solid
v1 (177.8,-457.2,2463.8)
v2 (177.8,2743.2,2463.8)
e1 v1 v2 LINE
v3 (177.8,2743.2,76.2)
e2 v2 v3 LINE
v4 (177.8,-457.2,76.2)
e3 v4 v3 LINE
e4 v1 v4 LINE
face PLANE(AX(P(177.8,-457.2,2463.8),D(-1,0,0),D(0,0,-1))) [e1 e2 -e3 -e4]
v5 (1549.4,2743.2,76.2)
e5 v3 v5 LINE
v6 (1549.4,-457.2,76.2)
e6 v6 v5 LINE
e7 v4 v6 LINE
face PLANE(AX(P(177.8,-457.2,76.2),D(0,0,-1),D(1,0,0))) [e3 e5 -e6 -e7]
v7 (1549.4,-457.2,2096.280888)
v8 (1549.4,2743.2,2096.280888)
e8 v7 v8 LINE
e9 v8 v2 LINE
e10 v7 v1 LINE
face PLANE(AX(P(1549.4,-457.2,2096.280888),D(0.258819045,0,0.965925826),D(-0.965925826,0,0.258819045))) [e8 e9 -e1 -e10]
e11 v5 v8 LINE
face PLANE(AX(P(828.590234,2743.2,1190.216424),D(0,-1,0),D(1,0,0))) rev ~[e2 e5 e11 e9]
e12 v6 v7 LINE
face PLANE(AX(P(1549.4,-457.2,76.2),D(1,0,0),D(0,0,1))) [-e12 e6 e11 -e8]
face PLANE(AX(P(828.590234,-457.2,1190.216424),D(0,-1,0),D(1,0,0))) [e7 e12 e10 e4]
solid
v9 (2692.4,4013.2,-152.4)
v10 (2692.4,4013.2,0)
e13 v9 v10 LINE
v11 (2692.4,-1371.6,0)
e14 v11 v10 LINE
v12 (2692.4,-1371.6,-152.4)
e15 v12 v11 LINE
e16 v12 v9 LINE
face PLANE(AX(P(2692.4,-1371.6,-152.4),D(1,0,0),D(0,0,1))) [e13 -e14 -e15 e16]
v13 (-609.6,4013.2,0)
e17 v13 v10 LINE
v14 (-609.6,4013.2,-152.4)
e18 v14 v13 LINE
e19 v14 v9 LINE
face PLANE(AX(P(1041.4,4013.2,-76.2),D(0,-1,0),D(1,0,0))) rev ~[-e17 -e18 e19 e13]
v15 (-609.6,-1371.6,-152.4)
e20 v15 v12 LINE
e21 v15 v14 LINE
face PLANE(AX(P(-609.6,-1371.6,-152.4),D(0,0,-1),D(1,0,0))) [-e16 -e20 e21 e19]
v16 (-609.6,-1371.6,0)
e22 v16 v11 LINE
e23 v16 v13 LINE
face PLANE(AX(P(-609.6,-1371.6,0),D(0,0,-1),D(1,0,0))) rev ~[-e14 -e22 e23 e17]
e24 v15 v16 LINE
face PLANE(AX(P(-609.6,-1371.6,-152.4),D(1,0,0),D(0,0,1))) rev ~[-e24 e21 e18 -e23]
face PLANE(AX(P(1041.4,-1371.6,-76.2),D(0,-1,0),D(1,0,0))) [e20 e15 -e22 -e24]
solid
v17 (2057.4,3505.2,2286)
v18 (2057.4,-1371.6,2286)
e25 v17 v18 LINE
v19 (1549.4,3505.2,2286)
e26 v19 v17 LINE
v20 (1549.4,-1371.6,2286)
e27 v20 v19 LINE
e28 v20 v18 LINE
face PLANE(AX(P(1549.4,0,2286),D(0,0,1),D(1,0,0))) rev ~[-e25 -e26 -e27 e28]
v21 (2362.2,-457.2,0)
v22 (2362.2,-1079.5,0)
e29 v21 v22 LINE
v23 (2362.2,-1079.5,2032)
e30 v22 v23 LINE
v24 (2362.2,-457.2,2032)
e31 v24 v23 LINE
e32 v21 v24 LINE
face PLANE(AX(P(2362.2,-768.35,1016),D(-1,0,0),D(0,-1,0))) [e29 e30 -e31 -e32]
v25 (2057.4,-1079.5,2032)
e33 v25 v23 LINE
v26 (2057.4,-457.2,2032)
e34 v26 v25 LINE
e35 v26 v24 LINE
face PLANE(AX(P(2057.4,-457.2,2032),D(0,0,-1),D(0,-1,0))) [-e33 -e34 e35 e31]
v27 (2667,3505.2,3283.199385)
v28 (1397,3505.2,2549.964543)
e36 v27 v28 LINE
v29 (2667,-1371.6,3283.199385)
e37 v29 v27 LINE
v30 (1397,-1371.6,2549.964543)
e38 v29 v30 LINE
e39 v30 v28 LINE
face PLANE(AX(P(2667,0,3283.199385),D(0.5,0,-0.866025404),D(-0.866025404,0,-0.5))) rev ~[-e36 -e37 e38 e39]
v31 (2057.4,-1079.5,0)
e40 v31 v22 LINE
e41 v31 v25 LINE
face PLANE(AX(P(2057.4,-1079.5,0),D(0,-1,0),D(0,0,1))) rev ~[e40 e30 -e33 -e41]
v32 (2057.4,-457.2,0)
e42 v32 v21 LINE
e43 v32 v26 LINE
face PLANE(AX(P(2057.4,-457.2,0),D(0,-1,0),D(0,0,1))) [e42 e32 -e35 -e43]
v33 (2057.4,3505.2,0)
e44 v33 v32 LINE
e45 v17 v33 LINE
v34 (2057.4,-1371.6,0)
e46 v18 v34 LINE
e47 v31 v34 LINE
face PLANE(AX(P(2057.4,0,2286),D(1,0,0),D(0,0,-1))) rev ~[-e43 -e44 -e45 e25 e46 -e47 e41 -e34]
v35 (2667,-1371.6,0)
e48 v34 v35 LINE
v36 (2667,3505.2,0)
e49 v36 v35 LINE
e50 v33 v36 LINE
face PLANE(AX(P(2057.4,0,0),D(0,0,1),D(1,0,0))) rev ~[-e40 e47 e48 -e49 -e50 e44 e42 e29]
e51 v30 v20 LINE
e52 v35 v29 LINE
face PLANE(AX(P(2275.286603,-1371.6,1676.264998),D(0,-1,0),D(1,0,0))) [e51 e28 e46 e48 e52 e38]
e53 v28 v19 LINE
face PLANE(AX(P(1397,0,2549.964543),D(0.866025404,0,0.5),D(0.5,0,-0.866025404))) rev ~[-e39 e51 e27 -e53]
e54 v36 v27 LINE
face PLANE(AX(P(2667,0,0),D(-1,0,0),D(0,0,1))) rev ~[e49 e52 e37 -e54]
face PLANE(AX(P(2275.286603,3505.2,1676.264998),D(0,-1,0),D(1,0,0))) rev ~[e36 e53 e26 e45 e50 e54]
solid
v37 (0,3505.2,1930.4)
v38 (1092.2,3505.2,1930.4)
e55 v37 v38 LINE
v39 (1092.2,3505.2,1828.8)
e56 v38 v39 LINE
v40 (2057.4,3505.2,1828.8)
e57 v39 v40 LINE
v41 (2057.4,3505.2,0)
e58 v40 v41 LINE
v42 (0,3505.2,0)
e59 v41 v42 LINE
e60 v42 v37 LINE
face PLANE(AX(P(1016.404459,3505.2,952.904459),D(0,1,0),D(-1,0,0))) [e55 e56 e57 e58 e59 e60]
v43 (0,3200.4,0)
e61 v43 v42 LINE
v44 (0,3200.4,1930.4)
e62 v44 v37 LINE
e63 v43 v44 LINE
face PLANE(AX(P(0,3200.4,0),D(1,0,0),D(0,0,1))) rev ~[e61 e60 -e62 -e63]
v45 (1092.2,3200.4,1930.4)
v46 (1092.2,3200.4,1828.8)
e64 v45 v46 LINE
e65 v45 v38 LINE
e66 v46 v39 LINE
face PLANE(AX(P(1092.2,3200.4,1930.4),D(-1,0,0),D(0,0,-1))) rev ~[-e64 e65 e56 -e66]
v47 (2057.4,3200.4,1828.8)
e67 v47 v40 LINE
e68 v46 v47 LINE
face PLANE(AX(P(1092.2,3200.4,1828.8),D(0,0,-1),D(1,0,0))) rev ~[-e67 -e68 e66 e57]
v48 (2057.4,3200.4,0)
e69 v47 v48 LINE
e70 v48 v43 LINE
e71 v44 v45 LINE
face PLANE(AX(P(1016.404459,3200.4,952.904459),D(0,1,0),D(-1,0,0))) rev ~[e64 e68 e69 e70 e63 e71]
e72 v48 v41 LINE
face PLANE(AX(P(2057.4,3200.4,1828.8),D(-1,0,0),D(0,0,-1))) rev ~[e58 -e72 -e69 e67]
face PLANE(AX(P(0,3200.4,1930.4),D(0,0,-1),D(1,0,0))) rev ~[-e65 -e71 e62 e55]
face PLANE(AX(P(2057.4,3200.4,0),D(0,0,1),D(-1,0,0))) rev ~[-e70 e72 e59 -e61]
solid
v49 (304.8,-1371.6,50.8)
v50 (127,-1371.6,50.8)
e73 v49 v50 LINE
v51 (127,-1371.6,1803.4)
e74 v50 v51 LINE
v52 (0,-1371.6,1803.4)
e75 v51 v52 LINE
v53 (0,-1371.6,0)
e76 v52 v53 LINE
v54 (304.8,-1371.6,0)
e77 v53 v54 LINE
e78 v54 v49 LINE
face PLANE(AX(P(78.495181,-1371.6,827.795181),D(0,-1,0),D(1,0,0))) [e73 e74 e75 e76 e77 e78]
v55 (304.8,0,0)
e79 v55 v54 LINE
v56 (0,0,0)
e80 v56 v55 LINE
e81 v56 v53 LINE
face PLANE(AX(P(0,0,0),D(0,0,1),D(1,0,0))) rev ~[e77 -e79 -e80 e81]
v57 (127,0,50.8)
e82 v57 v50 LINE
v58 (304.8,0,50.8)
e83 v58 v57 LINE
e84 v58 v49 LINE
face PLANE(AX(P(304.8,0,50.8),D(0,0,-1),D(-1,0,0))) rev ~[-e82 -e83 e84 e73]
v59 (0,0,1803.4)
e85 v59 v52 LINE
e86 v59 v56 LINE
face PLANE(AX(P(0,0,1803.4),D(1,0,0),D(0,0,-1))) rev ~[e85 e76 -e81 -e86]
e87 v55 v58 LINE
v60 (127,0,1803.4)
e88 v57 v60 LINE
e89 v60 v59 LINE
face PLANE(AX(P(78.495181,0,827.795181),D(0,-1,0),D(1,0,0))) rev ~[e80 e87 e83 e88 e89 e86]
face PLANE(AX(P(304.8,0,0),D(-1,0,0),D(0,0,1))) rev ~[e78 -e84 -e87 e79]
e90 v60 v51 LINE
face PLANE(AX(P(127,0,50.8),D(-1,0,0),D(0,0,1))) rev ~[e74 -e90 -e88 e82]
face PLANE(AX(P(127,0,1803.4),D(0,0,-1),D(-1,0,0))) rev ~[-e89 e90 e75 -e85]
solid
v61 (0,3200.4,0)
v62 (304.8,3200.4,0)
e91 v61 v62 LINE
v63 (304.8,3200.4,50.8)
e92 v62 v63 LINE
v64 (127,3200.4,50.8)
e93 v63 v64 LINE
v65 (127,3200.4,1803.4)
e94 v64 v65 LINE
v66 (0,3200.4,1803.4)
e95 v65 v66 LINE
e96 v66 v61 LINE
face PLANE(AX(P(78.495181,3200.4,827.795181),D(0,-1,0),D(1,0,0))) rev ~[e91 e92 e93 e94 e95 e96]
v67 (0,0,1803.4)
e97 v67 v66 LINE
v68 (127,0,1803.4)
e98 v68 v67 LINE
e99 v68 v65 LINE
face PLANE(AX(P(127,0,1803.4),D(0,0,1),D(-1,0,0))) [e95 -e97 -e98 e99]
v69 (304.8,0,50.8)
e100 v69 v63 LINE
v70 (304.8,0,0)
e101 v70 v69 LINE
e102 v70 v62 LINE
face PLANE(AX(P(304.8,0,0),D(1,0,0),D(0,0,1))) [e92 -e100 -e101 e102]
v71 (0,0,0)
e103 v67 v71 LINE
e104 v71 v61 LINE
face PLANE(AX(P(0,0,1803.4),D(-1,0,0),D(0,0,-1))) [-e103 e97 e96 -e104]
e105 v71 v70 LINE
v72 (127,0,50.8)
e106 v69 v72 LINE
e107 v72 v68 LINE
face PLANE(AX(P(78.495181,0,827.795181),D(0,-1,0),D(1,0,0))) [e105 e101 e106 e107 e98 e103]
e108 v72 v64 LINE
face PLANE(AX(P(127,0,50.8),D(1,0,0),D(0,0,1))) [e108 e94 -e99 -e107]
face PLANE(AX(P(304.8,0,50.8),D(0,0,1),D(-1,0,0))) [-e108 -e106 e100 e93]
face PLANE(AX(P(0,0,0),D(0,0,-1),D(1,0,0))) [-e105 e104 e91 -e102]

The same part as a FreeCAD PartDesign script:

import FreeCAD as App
import Part
import Sketcher

V = App.Vector
Q = App.Units.Quantity

doc = App.newDocument("Part")
body = doc.addObject("PartDesign::Body", "Body")

# Sketch on XZ plane
sketch1 = body.newObject("Sketcher::SketchObject", "Sketch")
sketch1.AttachmentSupport = (doc.getObject("XZ_Plane"), [""])
sketch1.MapMode = "FlatFace"
sketch1.addGeometry([
    Part.LineSegment(V(0, 1803, 0), V(0, 0, 0)),  # 0
    Part.LineSegment(V(0, 0, 0), V(305, 0, 0)),  # 1
    Part.LineSegment(V(305, 0, 0), V(305, 51, 0)),  # 2
    Part.LineSegment(V(305, 51, 0), V(127, 51, 0)),  # 3
    Part.LineSegment(V(127, 51, 0), V(127, 1803, 0)),  # 4
    Part.LineSegment(V(127, 1803, 0), V(0, 1803, 0)),  # 5
], False)
sketch1.addConstraint([
    Sketcher.Constraint("Coincident", 0, 2, 1, 1),
    Sketcher.Constraint("Coincident", 1, 2, 2, 1),
    Sketcher.Constraint("Coincident", 2, 2, 3, 1),
    Sketcher.Constraint("Coincident", 3, 2, 4, 1),
    Sketcher.Constraint("Coincident", 4, 2, 5, 1),
    Sketcher.Constraint("Coincident", 5, 2, 0, 1),
    Sketcher.Constraint("Vertical", 0),
    Sketcher.Constraint("Horizontal", 1),
    Sketcher.Constraint("Vertical", 2),
    Sketcher.Constraint("Horizontal", 3),
    Sketcher.Constraint("Vertical", 4),
    Sketcher.Constraint("Horizontal", 5),
    Sketcher.Constraint("Coincident", 0, 2, -1, 1),
    Sketcher.Constraint("DistanceX", 1, 1, 1, 2, Q("12 in")),
    Sketcher.Constraint("DistanceX", 3, 2, 3, 1, Q("7 in")),
    Sketcher.Constraint("DistanceY", 0, 2, 0, 1, Q("71 in")),
    Sketcher.Constraint("DistanceY", 2, 1, 2, 2, Q("2 in")),
])
pad1 = body.newObject("PartDesign::Pad", "Pad")
pad1.Profile = sketch1
pad1.Length = Q("126 in")
pad1.Reversed = True
body2 = doc.addObject("PartDesign::Body", "Body001")

# Sketch on XZ plane
sketch2 = body2.newObject("Sketcher::SketchObject", "Sketch001")
sketch2.AttachmentSupport = (doc.getObject("XZ_Plane001"), [""])
sketch2.MapMode = "FlatFace"
sketch2.addGeometry([
    Part.LineSegment(V(2057, 2286, 0), V(2057, 0, 0)),  # 0
    Part.LineSegment(V(2057, 0, 0), V(2667, 0, 0)),  # 1
    Part.LineSegment(V(2667, 0, 0), V(2667, 3283, 0)),  # 2
    Part.LineSegment(V(2667, 3283, 0), V(1397, 2550, 0)),  # 3
    Part.LineSegment(V(1397, 2550, 0), V(1549, 2286, 0)),  # 4
    Part.LineSegment(V(1549, 2286, 0), V(2057, 2286, 0)),  # 5
], False)
sketch2.addConstraint([
    Sketcher.Constraint("Coincident", 0, 2, 1, 1),
    Sketcher.Constraint("Coincident", 1, 2, 2, 1),
    Sketcher.Constraint("Coincident", 2, 2, 3, 1),
    Sketcher.Constraint("Coincident", 3, 2, 4, 1),
    Sketcher.Constraint("Coincident", 4, 2, 5, 1),
    Sketcher.Constraint("Coincident", 5, 2, 0, 1),
    Sketcher.Constraint("Vertical", 0),
    Sketcher.Constraint("Horizontal", 1),
    Sketcher.Constraint("Vertical", 2),
    Sketcher.Constraint("Horizontal", 5),
    Sketcher.Constraint("PointOnObject", 0, 2, -1),
    Sketcher.Constraint("Perpendicular", 3, 4),
    Sketcher.Constraint("DistanceX", 1, 1, 1, 2, Q("24 in")),
    Sketcher.Constraint("DistanceX", 5, 1, 5, 2, Q("20 in")),
    Sketcher.Constraint("DistanceY", 0, 2, 0, 1, Q("90 in")),
    Sketcher.Constraint("Distance", 4, Q("12 in")),
    Sketcher.Constraint("DistanceX", -1, 1, 0, 2, Q("81 in")),
    Sketcher.Constraint("DistanceX", -1, 1, 3, 2, Q("55 in")),
])
pad2 = body2.newObject("PartDesign::Pad", "Pad001")
pad2.Profile = sketch2
pad2.Length = Q("138 in")
pad2.Reversed = True

# Sketch on XZ plane
sketch3 = body2.newObject("Sketcher::SketchObject", "Sketch002")
sketch3.AttachmentSupport = (doc.getObject("XZ_Plane001"), [""])
sketch3.MapMode = "FlatFace"
sketch3.addGeometry([
    Part.LineSegment(V(1549, 2286, 0), V(2057, 2286, 0)),  # 0
    Part.LineSegment(V(2057, 2286, 0), V(2057, 0, 0)),  # 1
    Part.LineSegment(V(2057, 0, 0), V(2667, 0, 0)),  # 2
    Part.LineSegment(V(2667, 0, 0), V(2667, 3283, 0)),  # 3
    Part.LineSegment(V(2667, 3283, 0), V(1397, 2550, 0)),  # 4
    Part.LineSegment(V(1397, 2550, 0), V(1549, 2286, 0)),  # 5
], False)
sketch3.addConstraint([
    Sketcher.Constraint("Coincident", 0, 2, 1, 1),
    Sketcher.Constraint("Coincident", 1, 2, 2, 1),
    Sketcher.Constraint("Coincident", 2, 2, 3, 1),
    Sketcher.Constraint("Coincident", 3, 2, 4, 1),
    Sketcher.Constraint("Coincident", 4, 2, 5, 1),
    Sketcher.Constraint("Coincident", 5, 2, 0, 1),
    Sketcher.Constraint("Horizontal", 0),
    Sketcher.Constraint("Vertical", 1),
    Sketcher.Constraint("Horizontal", 2),
    Sketcher.Constraint("Vertical", 3),
    Sketcher.Constraint("PointOnObject", 1, 2, -1),
    Sketcher.Constraint("Perpendicular", 4, 5),
    Sketcher.Constraint("DistanceX", 0, 1, 0, 2, Q("20 in")),
    Sketcher.Constraint("DistanceX", 2, 1, 2, 2, Q("24 in")),
    Sketcher.Constraint("DistanceY", 1, 2, 1, 1, Q("90 in")),
    Sketcher.Constraint("Distance", 5, Q("12 in")),
    Sketcher.Constraint("DistanceX", -1, 1, 0, 2, Q("81 in")),
    Sketcher.Constraint("DistanceX", -1, 1, 4, 2, Q("55 in")),
])
pad3 = body2.newObject("PartDesign::Pad", "Pad002")
pad3.Profile = sketch3
pad3.Length = Q("54 in")

# Sketch on YZ plane
sketch4 = body2.newObject("Sketcher::SketchObject", "Sketch003")
sketch4.AttachmentSupport = (doc.getObject("YZ_Plane001"), [""])
sketch4.MapMode = "FlatFace"
sketch4.AttachmentOffset = App.Placement(V(0, 0, 81 * 25.4), App.Rotation())
sketch4.addGeometry([
    Part.LineSegment(V(-457, 2032, 0), V(-457, 0, 0)),
    Part.LineSegment(V(-457, 0, 0), V(-1080, 0, 0)),
    Part.LineSegment(V(-1080, 0, 0), V(-1080, 2032, 0)),
    Part.LineSegment(V(-1080, 2032, 0), V(-457, 2032, 0)),
], False)
sketch4.addConstraint([
    Sketcher.Constraint("Coincident", 0, 2, 1, 1),
    Sketcher.Constraint("Coincident", 1, 2, 2, 1),
    Sketcher.Constraint("Coincident", 2, 2, 3, 1),
    Sketcher.Constraint("Coincident", 3, 2, 0, 1),
    Sketcher.Constraint("Vertical", 0),
    Sketcher.Constraint("Horizontal", 1),
    Sketcher.Constraint("Vertical", 2),
    Sketcher.Constraint("Horizontal", 3),
    Sketcher.Constraint("PointOnObject", 0, 2, -1),
    Sketcher.Constraint("DistanceY", 0, 2, 0, 1, Q("80 in")),
    Sketcher.Constraint("DistanceX", 1, 2, 1, 1, Q("24.5 in")),
    Sketcher.Constraint("DistanceX", 0, 2, -1, 1, Q("18 in")),
])
pocket1 = body2.newObject("PartDesign::Pocket", "Pocket")
pocket1.Profile = sketch4
pocket1.Length = Q("12 in")
pocket1.Reversed = True
body3 = doc.addObject("PartDesign::Body", "Body002")

# Sketch on XZ plane
sketch5 = body3.newObject("Sketcher::SketchObject", "Sketch004")
sketch5.AttachmentSupport = (doc.getObject("XZ_Plane002"), [""])
sketch5.MapMode = "FlatFace"
sketch5.AttachmentOffset = App.Placement(V(0, 0, -126 * 25.4), App.Rotation())
sketch5.addGeometry([
    Part.LineSegment(V(2057, 0, 0), V(0, 0, 0)),  # 0
    Part.LineSegment(V(0, 0, 0), V(0, 1930, 0)),  # 1
    Part.LineSegment(V(0, 1930, 0), V(1092, 1930, 0)),  # 2
    Part.LineSegment(V(1092, 1930, 0), V(1092, 1829, 0)),  # 3
    Part.LineSegment(V(1092, 1829, 0), V(2057, 1829, 0)),  # 4
    Part.LineSegment(V(2057, 1829, 0), V(2057, 0, 0)),  # 5
], False)
sketch5.addConstraint([
    Sketcher.Constraint("Coincident", 0, 2, 1, 1),
    Sketcher.Constraint("Coincident", 1, 2, 2, 1),
    Sketcher.Constraint("Coincident", 2, 2, 3, 1),
    Sketcher.Constraint("Coincident", 3, 2, 4, 1),
    Sketcher.Constraint("Coincident", 4, 2, 5, 1),
    Sketcher.Constraint("Coincident", 5, 2, 0, 1),
    Sketcher.Constraint("Horizontal", 0),
    Sketcher.Constraint("Vertical", 1),
    Sketcher.Constraint("Horizontal", 2),
    Sketcher.Constraint("Vertical", 3),
    Sketcher.Constraint("Horizontal", 4),
    Sketcher.Constraint("Vertical", 5),
    Sketcher.Constraint("Coincident", 0, 2, -1, 1),
    Sketcher.Constraint("DistanceX", 0, 2, 0, 1, Q("81 in")),
    Sketcher.Constraint("DistanceX", 2, 1, 2, 2, Q("43 in")),
    Sketcher.Constraint("DistanceY", 1, 1, 1, 2, Q("76 in")),
    Sketcher.Constraint("DistanceY", 3, 2, 3, 1, Q("4 in")),
])
pad4 = body3.newObject("PartDesign::Pad", "Pad003")
pad4.Profile = sketch5
pad4.Length = Q("12 in")
pad4.Reversed = True
body4 = doc.addObject("PartDesign::Body", "Body003")

# Sketch on XZ plane
sketch6 = body4.newObject("Sketcher::SketchObject", "Sketch005")
sketch6.AttachmentSupport = (doc.getObject("XZ_Plane003"), [""])
sketch6.MapMode = "FlatFace"
sketch6.AttachmentOffset = App.Placement(V(0, 0, 54 * 25.4), App.Rotation())
sketch6.addGeometry([
    Part.LineSegment(V(-610, 0, 0), V(-610, -152, 0)),
    Part.LineSegment(V(-610, -152, 0), V(2692, -152, 0)),
    Part.LineSegment(V(2692, -152, 0), V(2692, 0, 0)),
    Part.LineSegment(V(2692, 0, 0), V(-610, 0, 0)),
], False)
sketch6.addConstraint([
    Sketcher.Constraint("Coincident", 0, 2, 1, 1),
    Sketcher.Constraint("Coincident", 1, 2, 2, 1),
    Sketcher.Constraint("Coincident", 2, 2, 3, 1),
    Sketcher.Constraint("Coincident", 3, 2, 0, 1),
    Sketcher.Constraint("Vertical", 0),
    Sketcher.Constraint("Horizontal", 1),
    Sketcher.Constraint("Vertical", 2),
    Sketcher.Constraint("Horizontal", 3),
    Sketcher.Constraint("PointOnObject", 2, 2, -1),
    Sketcher.Constraint("DistanceX", 1, 1, 1, 2, Q("130 in")),
    Sketcher.Constraint("DistanceY", 0, 2, 0, 1, Q("6 in")),
    Sketcher.Constraint("DistanceX", 0, 2, -1, 1, Q("24 in")),
])
pad5 = body4.newObject("PartDesign::Pad", "Pad004")
pad5.Profile = sketch6
pad5.Length = Q("212 in")
pad5.Reversed = True
body5 = doc.addObject("PartDesign::Body", "Body004")

# Sketch on XZ plane
sketch7 = body5.newObject("Sketcher::SketchObject", "Sketch006")
sketch7.AttachmentSupport = (doc.getObject("XZ_Plane004"), [""])
sketch7.MapMode = "FlatFace"
sketch7.addGeometry([
    Part.LineSegment(V(305, 51, 0), V(127, 51, 0)),  # 0
    Part.LineSegment(V(127, 51, 0), V(127, 1803, 0)),  # 1
    Part.LineSegment(V(127, 1803, 0), V(0, 1803, 0)),  # 2
    Part.LineSegment(V(0, 1803, 0), V(0, 0, 0)),  # 3
    Part.LineSegment(V(0, 0, 0), V(305, 0, 0)),  # 4
    Part.LineSegment(V(305, 0, 0), V(305, 51, 0)),  # 5
], False)
sketch7.addConstraint([
    Sketcher.Constraint("Coincident", 0, 2, 1, 1),
    Sketcher.Constraint("Coincident", 1, 2, 2, 1),
    Sketcher.Constraint("Coincident", 2, 2, 3, 1),
    Sketcher.Constraint("Coincident", 3, 2, 4, 1),
    Sketcher.Constraint("Coincident", 4, 2, 5, 1),
    Sketcher.Constraint("Coincident", 5, 2, 0, 1),
    Sketcher.Constraint("Horizontal", 0),
    Sketcher.Constraint("Vertical", 1),
    Sketcher.Constraint("Horizontal", 2),
    Sketcher.Constraint("Vertical", 3),
    Sketcher.Constraint("Horizontal", 4),
    Sketcher.Constraint("Vertical", 5),
    Sketcher.Constraint("Coincident", 3, 2, -1, 1),
    Sketcher.Constraint("DistanceX", 0, 2, 0, 1, Q("7 in")),
    Sketcher.Constraint("DistanceX", 2, 2, 2, 1, Q("5 in")),
    Sketcher.Constraint("DistanceY", 1, 1, 1, 2, Q("69 in")),
    Sketcher.Constraint("DistanceY", 3, 2, 3, 1, Q("71 in")),
])
pad6 = body5.newObject("PartDesign::Pad", "Pad005")
pad6.Profile = sketch7
pad6.Length = Q("54 in")
body6 = doc.addObject("PartDesign::Body", "Body005")

# Sketch on XZ plane
sketch8 = body6.newObject("Sketcher::SketchObject", "Sketch007")
sketch8.AttachmentSupport = (doc.getObject("XZ_Plane005"), [""])
sketch8.MapMode = "FlatFace"
sketch8.AttachmentOffset = App.Placement(V(0, 0, 18 * 25.4), App.Rotation())
sketch8.addGeometry([
    Part.LineSegment(V(178, 2464, 0), V(178, 76, 0)),
    Part.LineSegment(V(178, 76, 0), V(1549, 76, 0)),
    Part.LineSegment(V(1549, 76, 0), V(1549, 2096, 0)),
    Part.LineSegment(V(1549, 2096, 0), V(178, 2464, 0)),
], False)
sketch8.addConstraint([
    Sketcher.Constraint("Coincident", 0, 2, 1, 1),
    Sketcher.Constraint("Coincident", 1, 2, 2, 1),
    Sketcher.Constraint("Coincident", 2, 2, 3, 1),
    Sketcher.Constraint("Coincident", 3, 2, 0, 1),
    Sketcher.Constraint("Vertical", 0),
    Sketcher.Constraint("Horizontal", 1),
    Sketcher.Constraint("Vertical", 2),
    Sketcher.Constraint("DistanceX", 1, 1, 1, 2, Q("54 in")),
    Sketcher.Constraint("DistanceY", 0, 2, 0, 1, Q("94 in")),
    Sketcher.Constraint("DistanceX", -1, 1, 0, 2, Q("7 in")),
    Sketcher.Constraint("DistanceY", -1, 1, 0, 2, Q("3 in")),
    Sketcher.Constraint("Angle", 3, Q("165 deg")),
])
pad7 = body6.newObject("PartDesign::Pad", "Pad006")
pad7.Profile = sketch8
pad7.Length = Q("126 in")
pad7.Reversed = True

doc.recompute()
